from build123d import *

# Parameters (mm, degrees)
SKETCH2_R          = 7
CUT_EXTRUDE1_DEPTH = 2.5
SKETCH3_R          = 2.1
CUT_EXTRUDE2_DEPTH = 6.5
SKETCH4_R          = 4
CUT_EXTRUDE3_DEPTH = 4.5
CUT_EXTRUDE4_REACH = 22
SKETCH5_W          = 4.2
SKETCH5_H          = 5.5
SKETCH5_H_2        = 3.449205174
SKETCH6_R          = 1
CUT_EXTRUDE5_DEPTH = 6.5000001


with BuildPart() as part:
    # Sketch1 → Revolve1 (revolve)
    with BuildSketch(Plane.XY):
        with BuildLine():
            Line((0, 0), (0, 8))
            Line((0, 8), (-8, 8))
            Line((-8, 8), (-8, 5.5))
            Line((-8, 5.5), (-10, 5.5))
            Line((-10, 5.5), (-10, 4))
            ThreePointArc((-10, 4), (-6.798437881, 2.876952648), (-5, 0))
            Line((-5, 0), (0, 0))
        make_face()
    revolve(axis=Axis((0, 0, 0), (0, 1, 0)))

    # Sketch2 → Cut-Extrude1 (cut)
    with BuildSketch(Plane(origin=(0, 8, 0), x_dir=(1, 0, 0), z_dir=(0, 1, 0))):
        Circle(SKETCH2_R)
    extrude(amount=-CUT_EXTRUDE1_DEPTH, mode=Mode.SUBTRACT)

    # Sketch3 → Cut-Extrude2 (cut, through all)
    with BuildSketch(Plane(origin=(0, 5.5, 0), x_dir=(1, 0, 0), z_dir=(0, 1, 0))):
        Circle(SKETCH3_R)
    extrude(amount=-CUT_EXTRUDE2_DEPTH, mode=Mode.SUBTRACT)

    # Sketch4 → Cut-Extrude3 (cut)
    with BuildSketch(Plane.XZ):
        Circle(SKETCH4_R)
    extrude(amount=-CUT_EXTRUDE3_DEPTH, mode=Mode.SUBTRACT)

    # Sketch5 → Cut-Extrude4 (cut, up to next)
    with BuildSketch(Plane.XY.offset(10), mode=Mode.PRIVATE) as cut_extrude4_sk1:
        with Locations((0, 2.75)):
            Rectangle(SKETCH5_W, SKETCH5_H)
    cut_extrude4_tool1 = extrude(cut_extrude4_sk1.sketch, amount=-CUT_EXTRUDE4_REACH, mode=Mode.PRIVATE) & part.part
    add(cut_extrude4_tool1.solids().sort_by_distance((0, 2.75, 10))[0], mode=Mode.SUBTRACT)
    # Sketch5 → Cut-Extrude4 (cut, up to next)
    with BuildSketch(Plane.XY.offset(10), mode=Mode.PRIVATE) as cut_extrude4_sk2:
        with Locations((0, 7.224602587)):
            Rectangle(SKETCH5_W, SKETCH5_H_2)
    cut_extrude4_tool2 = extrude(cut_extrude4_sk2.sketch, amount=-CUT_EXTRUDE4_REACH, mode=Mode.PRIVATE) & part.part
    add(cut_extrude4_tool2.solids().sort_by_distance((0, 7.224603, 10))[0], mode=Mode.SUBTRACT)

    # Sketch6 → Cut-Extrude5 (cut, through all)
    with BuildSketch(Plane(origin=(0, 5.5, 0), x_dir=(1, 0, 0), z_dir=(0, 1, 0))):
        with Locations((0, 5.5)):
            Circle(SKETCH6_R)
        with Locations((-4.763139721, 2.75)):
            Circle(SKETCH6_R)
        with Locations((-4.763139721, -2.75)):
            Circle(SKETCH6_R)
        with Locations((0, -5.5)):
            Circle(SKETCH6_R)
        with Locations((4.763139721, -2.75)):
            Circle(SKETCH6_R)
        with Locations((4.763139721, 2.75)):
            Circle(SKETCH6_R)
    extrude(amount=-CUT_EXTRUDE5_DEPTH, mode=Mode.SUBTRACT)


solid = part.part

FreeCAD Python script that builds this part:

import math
import FreeCAD as App
import Part
import Sketcher

V = App.Vector
Q = App.Units.Quantity


def add_polygon(sketch, points):
    """Adds a closed chain of lines whose ends are joined by coincident constraints."""
    first, n = sketch.GeometryCount, len(points)
    for a, b in zip(points, points[1:] + points[:1]):
        sketch.addGeometry(Part.LineSegment(App.Vector(*a, 0), App.Vector(*b, 0)), False)
    for i in range(n):
        sketch.addConstraint(Sketcher.Constraint("Coincident", first + i, 2, first + (i + 1) % n, 1))

doc = App.newDocument("Part")
body = doc.addObject("PartDesign::Body", "Body")

sketch1 = body.newObject("Sketcher::SketchObject", "Sketch")
sketch1.AttachmentSupport = (doc.getObject("XY_Plane"), [""])
sketch1.MapMode = "FlatFace"
sketch1.addGeometry([
    Part.LineSegment(V(0, 0, 0), V(0, 8, 0)),
    Part.LineSegment(V(0, 8, 0), V(-8, 8, 0)),
    Part.LineSegment(V(-8, 8, 0), V(-8, 5.5, 0)),
    Part.LineSegment(V(-8, 5.5, 0), V(-10, 5.5, 0)),
    Part.LineSegment(V(-10, 5.5, 0), V(-10, 4, 0)),
    Part.ArcOfCircle(Part.Circle(V(-10, -1.1, 0), V(0, 0, 1), 5.1), math.radians(13), math.radians(90)),
    Part.LineSegment(V(-5, 0, 0), V(0, 0, 0)),
], False)
sketch1.addConstraint([
    Sketcher.Constraint("Coincident", 0, 2, 1, 1),
    Sketcher.Constraint("Coincident", 1, 2, 2, 1),
    Sketcher.Constraint("Coincident", 2, 2, 3, 1),
    Sketcher.Constraint("Coincident", 3, 2, 4, 1),
    Sketcher.Constraint("Coincident", 4, 2, 5, 2),
    Sketcher.Constraint("Coincident", 5, 1, 6, 1),
    Sketcher.Constraint("Coincident", 6, 2, 0, 1),
    Sketcher.Constraint("Vertical", 0),
    Sketcher.Constraint("Horizontal", 1),
    Sketcher.Constraint("Vertical", 2),
    Sketcher.Constraint("Horizontal", 3),
    Sketcher.Constraint("Vertical", 4),
    Sketcher.Constraint("Horizontal", 6),
    Sketcher.Constraint("Coincident", 6, 2, -1, 1),
    Sketcher.Constraint("Vertical", 5, 3, 3, 2),
    Sketcher.Constraint("Equal", 1, 0),
    Sketcher.Constraint("DistanceX", 1, 2, 1, 1, Q("8 mm")),
    Sketcher.Constraint("DistanceX", 3, 2, 3, 1, Q("2 mm")),
    Sketcher.Constraint("DistanceX", 6, 1, 6, 2, Q("5 mm")),
    Sketcher.Constraint("DistanceY", 2, 2, 2, 1, Q("2.5 mm")),
    Sketcher.Constraint("DistanceY", 4, 2, 4, 1, Q("1.5 mm")),
])
revolution = body.newObject("PartDesign::Revolution", "Revolution")
revolution.Profile = sketch1
revolution.ReferenceAxis = (sketch1, ["V_Axis"])
revolution.Angle = 360

sketch2 = body.newObject("Sketcher::SketchObject", "Sketch001")
sketch2.AttachmentSupport = (doc.getObject("XZ_Plane"), [""])
sketch2.MapMode = "FlatFace"
sketch2.AttachmentOffset = App.Placement(V(0, 0, -8), App.Rotation())
sketch2.addGeometry(Part.Circle(V(0, 0, 0), V(0, 0, 1), 7), False)
sketch2.addConstraint([
    Sketcher.Constraint("Coincident", 0, 3, -1, 1),
    Sketcher.Constraint("Diameter", 0, Q("14 mm")),
])
pocket1 = body.newObject("PartDesign::Pocket", "Pocket")
pocket1.Profile = sketch2
pocket1.Length = 2.5
pocket1.Reversed = True

sketch3 = body.newObject("Sketcher::SketchObject", "Sketch002")
sketch3.AttachmentSupport = (doc.getObject("XZ_Plane"), [""])
sketch3.MapMode = "FlatFace"
sketch3.AttachmentOffset = App.Placement(V(0, 0, -5.5), App.Rotation())
sketch3.addGeometry(Part.Circle(V(0, 0, 0), V(0, 0, 1), 2.1), False)
sketch3.addConstraint([
    Sketcher.Constraint("Coincident", 0, 3, -1, 1),
    Sketcher.Constraint("Diameter", 0, Q("4.2 mm")),
])
pocket2 = body.newObject("PartDesign::Pocket", "Pocket001")
pocket2.Profile = sketch3
pocket2.Type = "ThroughAll"
pocket2.Reversed = True

sketch4 = body.newObject("Sketcher::SketchObject", "Sketch003")
sketch4.AttachmentSupport = (doc.getObject("XZ_Plane"), [""])
sketch4.MapMode = "FlatFace"
sketch4.addGeometry(Part.Circle(V(0, 0, 0), V(0, 0, 1), 4), False)
sketch4.addConstraint([
    Sketcher.Constraint("Coincident", 0, 3, -1, 1),
    Sketcher.Constraint("Diameter", 0, Q("8 mm")),
])
pocket3 = body.newObject("PartDesign::Pocket", "Pocket002")
pocket3.Profile = sketch4
pocket3.Length = 4.5

sketch5 = body.newObject("Sketcher::SketchObject", "Sketch004")
sketch5.AttachmentSupport = (doc.getObject("XY_Plane"), [""])
sketch5.MapMode = "FlatFace"
sketch5.AttachmentOffset = App.Placement(V(0, 0, 10), App.Rotation())
add_polygon(sketch5, [(-2.1, 5.5), (-2.1, 0), (2.1, 0), (2.1, 5.5)])
sketch5.addConstraint([
    Sketcher.Constraint("Vertical", 0),
    Sketcher.Constraint("Horizontal", 1),
    Sketcher.Constraint("Vertical", 2),
    Sketcher.Constraint("Horizontal", 3),
    Sketcher.Constraint("Symmetric", 0, 2, 1, 2, -1, 1),
    Sketcher.Constraint("DistanceX", 1, 1, 1, 2, Q("4.2 mm")),
    Sketcher.Constraint("DistanceY", 0, 2, 0, 1, Q("5.5 mm")),
])
pocket4 = body.newObject("PartDesign::Pocket", "Pocket003")
pocket4.Profile = sketch5
pocket4.Length = 10

sketch6 = body.newObject("Sketcher::SketchObject", "Sketch005")
sketch6.AttachmentSupport = (doc.getObject("XY_Plane"), [""])
sketch6.MapMode = "FlatFace"
sketch6.AttachmentOffset = App.Placement(V(0, 0, 10), App.Rotation())
add_polygon(sketch6, [(-2.1, 8.9), (-2.1, 5.5), (2.1, 5.5), (2.1, 8.9)])
sketch6.addConstraint([
    Sketcher.Constraint("Vertical", 0),
    Sketcher.Constraint("Horizontal", 1),
    Sketcher.Constraint("Vertical", 2),
    Sketcher.Constraint("Horizontal", 3),
    Sketcher.Constraint("DistanceX", 1, 1, 1, 2, Q("4.2 mm")),
    Sketcher.Constraint("DistanceX", 0, 2, -1, 1, Q("2.1 mm")),
    Sketcher.Constraint("DistanceY", -1, 1, 0, 2, Q("5.5 mm")),
    Sketcher.Constraint("DistanceY", 0, 2, 0, 1, Q("3.449205 mm")),
])
pocket5 = body.newObject("PartDesign::Pocket", "Pocket004")
pocket5.Profile = sketch6
pocket5.Length = 3.322426

sketch7 = body.newObject("Sketcher::SketchObject", "Sketch006")
sketch7.AttachmentSupport = (doc.getObject("XZ_Plane"), [""])
sketch7.MapMode = "FlatFace"
sketch7.AttachmentOffset = App.Placement(V(0, 0, -5.5), App.Rotation())
sketch7.addGeometry([
    Part.Circle(V(0, -5.5, 0), V(0, 0, 1), 1),
    Part.Circle(V(-4.8, -2.8, 0), V(0, 0, 1), 1),
    Part.Circle(V(-4.8, 2.8, 0), V(0, 0, 1), 1),
    Part.Circle(V(0, 5.5, 0), V(0, 0, 1), 1),
    Part.Circle(V(4.8, 2.8, 0), V(0, 0, 1), 1),
    Part.Circle(V(4.8, -2.8, 0), V(0, 0, 1), 1),
], False)
sketch7.addConstraint([
    Sketcher.Constraint("Equal", 0, 1),
    Sketcher.Constraint("Equal", 1, 2),
    Sketcher.Constraint("Equal", 2, 3),
    Sketcher.Constraint("Equal", 3, 4),
    Sketcher.Constraint("Equal", 4, 5),
    Sketcher.Constraint("Symmetric", 0, 3, 3, 3, -1, 1),
    Sketcher.Constraint("Symmetric", 1, 3, 4, 3, -1, 1),
    Sketcher.Constraint("Symmetric", 2, 3, 5, 3, -1, 1),
    Sketcher.Constraint("Symmetric", 2, 3, 4, 3, -2),
    Sketcher.Constraint("PointOnObject", 0, 3, -2),
    Sketcher.Constraint("Diameter", 0, Q("2 mm")),
    Sketcher.Constraint("DistanceY", 0, 3, 3, 3, Q("11 mm")),
    Sketcher.Constraint("DistanceY", 1, 3, 2, 3, Q("5.5 mm")),
    Sketcher.Constraint("DistanceX", 1, 3, -1, 1, Q("4.76314 mm")),
])
pocket6 = body.newObject("PartDesign::Pocket", "Pocket005")
pocket6.Profile = sketch7
pocket6.Type = "ThroughAll"
pocket6.Reversed = True

doc.recompute()
